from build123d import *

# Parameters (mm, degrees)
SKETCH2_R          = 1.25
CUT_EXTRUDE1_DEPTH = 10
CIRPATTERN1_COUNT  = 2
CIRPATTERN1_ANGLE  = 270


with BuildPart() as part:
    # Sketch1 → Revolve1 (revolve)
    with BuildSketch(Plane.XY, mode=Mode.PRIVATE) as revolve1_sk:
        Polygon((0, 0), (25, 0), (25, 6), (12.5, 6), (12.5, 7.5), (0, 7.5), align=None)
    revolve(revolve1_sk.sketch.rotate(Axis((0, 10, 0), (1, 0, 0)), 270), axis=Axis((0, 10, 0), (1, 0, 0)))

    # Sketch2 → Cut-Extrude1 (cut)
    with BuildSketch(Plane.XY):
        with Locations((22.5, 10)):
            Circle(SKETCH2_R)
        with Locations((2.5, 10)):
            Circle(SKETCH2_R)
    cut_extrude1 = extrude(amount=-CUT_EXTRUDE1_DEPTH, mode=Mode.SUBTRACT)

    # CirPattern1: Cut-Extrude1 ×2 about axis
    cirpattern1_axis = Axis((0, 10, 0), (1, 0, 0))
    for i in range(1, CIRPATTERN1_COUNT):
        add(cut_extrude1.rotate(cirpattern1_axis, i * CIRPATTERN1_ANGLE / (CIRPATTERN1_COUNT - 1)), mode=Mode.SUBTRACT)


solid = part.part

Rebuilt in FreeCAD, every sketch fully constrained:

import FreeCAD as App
import Part
import Sketcher

V = App.Vector


def add_polygon(sketch, points):
    """Adds a closed chain of lines whose ends are joined by coincident constraints."""
    first, n = sketch.GeometryCount, len(points)
    for a, b in zip(points, points[1:] + points[:1]):
        sketch.addGeometry(Part.LineSegment(App.Vector(*a, 0), App.Vector(*b, 0)), False)
    for i in range(n):
        sketch.addConstraint(Sketcher.Constraint("Coincident", first + i, 2, first + (i + 1) % n, 1))

doc = App.newDocument("Part")
body = doc.addObject("PartDesign::Body", "Body")

sketch1 = body.newObject("Sketcher::SketchObject", "Sketch")
sketch1.AttachmentSupport = (doc.getObject("XY_Plane"), [""])
sketch1.MapMode = "FlatFace"
add_polygon(sketch1, [(0, 0), (25, 0), (25, 6), (12.5, 6), (12.5, 7.5), (0, 7.5)])
sketch1.addGeometry(Part.LineSegment(V(0, 10, 0), V(25, 10, 0)), True)
sketch1.addConstraint([
    Sketcher.Constraint("Horizontal", 0),
    Sketcher.Constraint("Vertical", 1),
    Sketcher.Constraint("Horizontal", 2),
    Sketcher.Constraint("Vertical", 3),
    Sketcher.Constraint("Horizontal", 4),
    Sketcher.Constraint("Vertical", 5),
    Sketcher.Constraint("Horizontal", 6),
    Sketcher.Constraint("Coincident", 5, 2, -1, 1),
    Sketcher.Constraint("PointOnObject", 6, 1, -2),
    Sketcher.Constraint("Vertical", 1, 2, 6, 2),
    Sketcher.Constraint("Equal", 2, 4),
    Sketcher.Constraint("DistanceX", 0, 1, 0, 2, 25.0),
    Sketcher.Constraint("DistanceY", 1, 1, 1, 2, 6.0),
    Sketcher.Constraint("DistanceY", 3, 1, 3, 2, 1.5),
    Sketcher.Constraint("DistanceY", -1, 1, 6, 1, 10.0),
])
revolution = body.newObject("PartDesign::Revolution", "Revolution")
revolution.Profile = sketch1
revolution.ReferenceAxis = (sketch1, ["Axis0"])
revolution.Angle = 360

sketch2 = body.newObject("Sketcher::SketchObject", "Sketch001")
sketch2.AttachmentSupport = (doc.getObject("XY_Plane"), [""])
sketch2.MapMode = "FlatFace"
sketch2.addGeometry([
    Part.Circle(V(22.5, 10, 0), V(0, 0, 1), 1.25),
    Part.Circle(V(2.5, 10, 0), V(0, 0, 1), 1.25),
], False)
sketch2.addConstraint([
    Sketcher.Constraint("Equal", 0, 1),
    Sketcher.Constraint("Horizontal", 0, 3, 1, 3),
    Sketcher.Constraint("Diameter", 0, 2.5),
    Sketcher.Constraint("DistanceY", -1, 1, 0, 3, 10.0),
    Sketcher.Constraint("DistanceX", 1, 3, 0, 3, 20.0),
    Sketcher.Constraint("DistanceX", -1, 1, 0, 3, 22.5),
])
pocket1 = body.newObject("PartDesign::Pocket", "Pocket")
pocket1.Profile = sketch2
pocket1.Length = 10
doc.recompute()

datumline = body.newObject("PartDesign::Line", "DatumLine")
datumline.Placement = App.Placement(V(0, 10, 0), App.Rotation(V(0, 0, 1), V(1, 0, 0)))
polarpattern = body.newObject("PartDesign::PolarPattern", "PolarPattern")
polarpattern.Originals = [pocket1]
polarpattern.Axis = (datumline, [""])
polarpattern.Angle = 270
polarpattern.Occurrences = 2
body.Tip = polarpattern

doc.recompute()
